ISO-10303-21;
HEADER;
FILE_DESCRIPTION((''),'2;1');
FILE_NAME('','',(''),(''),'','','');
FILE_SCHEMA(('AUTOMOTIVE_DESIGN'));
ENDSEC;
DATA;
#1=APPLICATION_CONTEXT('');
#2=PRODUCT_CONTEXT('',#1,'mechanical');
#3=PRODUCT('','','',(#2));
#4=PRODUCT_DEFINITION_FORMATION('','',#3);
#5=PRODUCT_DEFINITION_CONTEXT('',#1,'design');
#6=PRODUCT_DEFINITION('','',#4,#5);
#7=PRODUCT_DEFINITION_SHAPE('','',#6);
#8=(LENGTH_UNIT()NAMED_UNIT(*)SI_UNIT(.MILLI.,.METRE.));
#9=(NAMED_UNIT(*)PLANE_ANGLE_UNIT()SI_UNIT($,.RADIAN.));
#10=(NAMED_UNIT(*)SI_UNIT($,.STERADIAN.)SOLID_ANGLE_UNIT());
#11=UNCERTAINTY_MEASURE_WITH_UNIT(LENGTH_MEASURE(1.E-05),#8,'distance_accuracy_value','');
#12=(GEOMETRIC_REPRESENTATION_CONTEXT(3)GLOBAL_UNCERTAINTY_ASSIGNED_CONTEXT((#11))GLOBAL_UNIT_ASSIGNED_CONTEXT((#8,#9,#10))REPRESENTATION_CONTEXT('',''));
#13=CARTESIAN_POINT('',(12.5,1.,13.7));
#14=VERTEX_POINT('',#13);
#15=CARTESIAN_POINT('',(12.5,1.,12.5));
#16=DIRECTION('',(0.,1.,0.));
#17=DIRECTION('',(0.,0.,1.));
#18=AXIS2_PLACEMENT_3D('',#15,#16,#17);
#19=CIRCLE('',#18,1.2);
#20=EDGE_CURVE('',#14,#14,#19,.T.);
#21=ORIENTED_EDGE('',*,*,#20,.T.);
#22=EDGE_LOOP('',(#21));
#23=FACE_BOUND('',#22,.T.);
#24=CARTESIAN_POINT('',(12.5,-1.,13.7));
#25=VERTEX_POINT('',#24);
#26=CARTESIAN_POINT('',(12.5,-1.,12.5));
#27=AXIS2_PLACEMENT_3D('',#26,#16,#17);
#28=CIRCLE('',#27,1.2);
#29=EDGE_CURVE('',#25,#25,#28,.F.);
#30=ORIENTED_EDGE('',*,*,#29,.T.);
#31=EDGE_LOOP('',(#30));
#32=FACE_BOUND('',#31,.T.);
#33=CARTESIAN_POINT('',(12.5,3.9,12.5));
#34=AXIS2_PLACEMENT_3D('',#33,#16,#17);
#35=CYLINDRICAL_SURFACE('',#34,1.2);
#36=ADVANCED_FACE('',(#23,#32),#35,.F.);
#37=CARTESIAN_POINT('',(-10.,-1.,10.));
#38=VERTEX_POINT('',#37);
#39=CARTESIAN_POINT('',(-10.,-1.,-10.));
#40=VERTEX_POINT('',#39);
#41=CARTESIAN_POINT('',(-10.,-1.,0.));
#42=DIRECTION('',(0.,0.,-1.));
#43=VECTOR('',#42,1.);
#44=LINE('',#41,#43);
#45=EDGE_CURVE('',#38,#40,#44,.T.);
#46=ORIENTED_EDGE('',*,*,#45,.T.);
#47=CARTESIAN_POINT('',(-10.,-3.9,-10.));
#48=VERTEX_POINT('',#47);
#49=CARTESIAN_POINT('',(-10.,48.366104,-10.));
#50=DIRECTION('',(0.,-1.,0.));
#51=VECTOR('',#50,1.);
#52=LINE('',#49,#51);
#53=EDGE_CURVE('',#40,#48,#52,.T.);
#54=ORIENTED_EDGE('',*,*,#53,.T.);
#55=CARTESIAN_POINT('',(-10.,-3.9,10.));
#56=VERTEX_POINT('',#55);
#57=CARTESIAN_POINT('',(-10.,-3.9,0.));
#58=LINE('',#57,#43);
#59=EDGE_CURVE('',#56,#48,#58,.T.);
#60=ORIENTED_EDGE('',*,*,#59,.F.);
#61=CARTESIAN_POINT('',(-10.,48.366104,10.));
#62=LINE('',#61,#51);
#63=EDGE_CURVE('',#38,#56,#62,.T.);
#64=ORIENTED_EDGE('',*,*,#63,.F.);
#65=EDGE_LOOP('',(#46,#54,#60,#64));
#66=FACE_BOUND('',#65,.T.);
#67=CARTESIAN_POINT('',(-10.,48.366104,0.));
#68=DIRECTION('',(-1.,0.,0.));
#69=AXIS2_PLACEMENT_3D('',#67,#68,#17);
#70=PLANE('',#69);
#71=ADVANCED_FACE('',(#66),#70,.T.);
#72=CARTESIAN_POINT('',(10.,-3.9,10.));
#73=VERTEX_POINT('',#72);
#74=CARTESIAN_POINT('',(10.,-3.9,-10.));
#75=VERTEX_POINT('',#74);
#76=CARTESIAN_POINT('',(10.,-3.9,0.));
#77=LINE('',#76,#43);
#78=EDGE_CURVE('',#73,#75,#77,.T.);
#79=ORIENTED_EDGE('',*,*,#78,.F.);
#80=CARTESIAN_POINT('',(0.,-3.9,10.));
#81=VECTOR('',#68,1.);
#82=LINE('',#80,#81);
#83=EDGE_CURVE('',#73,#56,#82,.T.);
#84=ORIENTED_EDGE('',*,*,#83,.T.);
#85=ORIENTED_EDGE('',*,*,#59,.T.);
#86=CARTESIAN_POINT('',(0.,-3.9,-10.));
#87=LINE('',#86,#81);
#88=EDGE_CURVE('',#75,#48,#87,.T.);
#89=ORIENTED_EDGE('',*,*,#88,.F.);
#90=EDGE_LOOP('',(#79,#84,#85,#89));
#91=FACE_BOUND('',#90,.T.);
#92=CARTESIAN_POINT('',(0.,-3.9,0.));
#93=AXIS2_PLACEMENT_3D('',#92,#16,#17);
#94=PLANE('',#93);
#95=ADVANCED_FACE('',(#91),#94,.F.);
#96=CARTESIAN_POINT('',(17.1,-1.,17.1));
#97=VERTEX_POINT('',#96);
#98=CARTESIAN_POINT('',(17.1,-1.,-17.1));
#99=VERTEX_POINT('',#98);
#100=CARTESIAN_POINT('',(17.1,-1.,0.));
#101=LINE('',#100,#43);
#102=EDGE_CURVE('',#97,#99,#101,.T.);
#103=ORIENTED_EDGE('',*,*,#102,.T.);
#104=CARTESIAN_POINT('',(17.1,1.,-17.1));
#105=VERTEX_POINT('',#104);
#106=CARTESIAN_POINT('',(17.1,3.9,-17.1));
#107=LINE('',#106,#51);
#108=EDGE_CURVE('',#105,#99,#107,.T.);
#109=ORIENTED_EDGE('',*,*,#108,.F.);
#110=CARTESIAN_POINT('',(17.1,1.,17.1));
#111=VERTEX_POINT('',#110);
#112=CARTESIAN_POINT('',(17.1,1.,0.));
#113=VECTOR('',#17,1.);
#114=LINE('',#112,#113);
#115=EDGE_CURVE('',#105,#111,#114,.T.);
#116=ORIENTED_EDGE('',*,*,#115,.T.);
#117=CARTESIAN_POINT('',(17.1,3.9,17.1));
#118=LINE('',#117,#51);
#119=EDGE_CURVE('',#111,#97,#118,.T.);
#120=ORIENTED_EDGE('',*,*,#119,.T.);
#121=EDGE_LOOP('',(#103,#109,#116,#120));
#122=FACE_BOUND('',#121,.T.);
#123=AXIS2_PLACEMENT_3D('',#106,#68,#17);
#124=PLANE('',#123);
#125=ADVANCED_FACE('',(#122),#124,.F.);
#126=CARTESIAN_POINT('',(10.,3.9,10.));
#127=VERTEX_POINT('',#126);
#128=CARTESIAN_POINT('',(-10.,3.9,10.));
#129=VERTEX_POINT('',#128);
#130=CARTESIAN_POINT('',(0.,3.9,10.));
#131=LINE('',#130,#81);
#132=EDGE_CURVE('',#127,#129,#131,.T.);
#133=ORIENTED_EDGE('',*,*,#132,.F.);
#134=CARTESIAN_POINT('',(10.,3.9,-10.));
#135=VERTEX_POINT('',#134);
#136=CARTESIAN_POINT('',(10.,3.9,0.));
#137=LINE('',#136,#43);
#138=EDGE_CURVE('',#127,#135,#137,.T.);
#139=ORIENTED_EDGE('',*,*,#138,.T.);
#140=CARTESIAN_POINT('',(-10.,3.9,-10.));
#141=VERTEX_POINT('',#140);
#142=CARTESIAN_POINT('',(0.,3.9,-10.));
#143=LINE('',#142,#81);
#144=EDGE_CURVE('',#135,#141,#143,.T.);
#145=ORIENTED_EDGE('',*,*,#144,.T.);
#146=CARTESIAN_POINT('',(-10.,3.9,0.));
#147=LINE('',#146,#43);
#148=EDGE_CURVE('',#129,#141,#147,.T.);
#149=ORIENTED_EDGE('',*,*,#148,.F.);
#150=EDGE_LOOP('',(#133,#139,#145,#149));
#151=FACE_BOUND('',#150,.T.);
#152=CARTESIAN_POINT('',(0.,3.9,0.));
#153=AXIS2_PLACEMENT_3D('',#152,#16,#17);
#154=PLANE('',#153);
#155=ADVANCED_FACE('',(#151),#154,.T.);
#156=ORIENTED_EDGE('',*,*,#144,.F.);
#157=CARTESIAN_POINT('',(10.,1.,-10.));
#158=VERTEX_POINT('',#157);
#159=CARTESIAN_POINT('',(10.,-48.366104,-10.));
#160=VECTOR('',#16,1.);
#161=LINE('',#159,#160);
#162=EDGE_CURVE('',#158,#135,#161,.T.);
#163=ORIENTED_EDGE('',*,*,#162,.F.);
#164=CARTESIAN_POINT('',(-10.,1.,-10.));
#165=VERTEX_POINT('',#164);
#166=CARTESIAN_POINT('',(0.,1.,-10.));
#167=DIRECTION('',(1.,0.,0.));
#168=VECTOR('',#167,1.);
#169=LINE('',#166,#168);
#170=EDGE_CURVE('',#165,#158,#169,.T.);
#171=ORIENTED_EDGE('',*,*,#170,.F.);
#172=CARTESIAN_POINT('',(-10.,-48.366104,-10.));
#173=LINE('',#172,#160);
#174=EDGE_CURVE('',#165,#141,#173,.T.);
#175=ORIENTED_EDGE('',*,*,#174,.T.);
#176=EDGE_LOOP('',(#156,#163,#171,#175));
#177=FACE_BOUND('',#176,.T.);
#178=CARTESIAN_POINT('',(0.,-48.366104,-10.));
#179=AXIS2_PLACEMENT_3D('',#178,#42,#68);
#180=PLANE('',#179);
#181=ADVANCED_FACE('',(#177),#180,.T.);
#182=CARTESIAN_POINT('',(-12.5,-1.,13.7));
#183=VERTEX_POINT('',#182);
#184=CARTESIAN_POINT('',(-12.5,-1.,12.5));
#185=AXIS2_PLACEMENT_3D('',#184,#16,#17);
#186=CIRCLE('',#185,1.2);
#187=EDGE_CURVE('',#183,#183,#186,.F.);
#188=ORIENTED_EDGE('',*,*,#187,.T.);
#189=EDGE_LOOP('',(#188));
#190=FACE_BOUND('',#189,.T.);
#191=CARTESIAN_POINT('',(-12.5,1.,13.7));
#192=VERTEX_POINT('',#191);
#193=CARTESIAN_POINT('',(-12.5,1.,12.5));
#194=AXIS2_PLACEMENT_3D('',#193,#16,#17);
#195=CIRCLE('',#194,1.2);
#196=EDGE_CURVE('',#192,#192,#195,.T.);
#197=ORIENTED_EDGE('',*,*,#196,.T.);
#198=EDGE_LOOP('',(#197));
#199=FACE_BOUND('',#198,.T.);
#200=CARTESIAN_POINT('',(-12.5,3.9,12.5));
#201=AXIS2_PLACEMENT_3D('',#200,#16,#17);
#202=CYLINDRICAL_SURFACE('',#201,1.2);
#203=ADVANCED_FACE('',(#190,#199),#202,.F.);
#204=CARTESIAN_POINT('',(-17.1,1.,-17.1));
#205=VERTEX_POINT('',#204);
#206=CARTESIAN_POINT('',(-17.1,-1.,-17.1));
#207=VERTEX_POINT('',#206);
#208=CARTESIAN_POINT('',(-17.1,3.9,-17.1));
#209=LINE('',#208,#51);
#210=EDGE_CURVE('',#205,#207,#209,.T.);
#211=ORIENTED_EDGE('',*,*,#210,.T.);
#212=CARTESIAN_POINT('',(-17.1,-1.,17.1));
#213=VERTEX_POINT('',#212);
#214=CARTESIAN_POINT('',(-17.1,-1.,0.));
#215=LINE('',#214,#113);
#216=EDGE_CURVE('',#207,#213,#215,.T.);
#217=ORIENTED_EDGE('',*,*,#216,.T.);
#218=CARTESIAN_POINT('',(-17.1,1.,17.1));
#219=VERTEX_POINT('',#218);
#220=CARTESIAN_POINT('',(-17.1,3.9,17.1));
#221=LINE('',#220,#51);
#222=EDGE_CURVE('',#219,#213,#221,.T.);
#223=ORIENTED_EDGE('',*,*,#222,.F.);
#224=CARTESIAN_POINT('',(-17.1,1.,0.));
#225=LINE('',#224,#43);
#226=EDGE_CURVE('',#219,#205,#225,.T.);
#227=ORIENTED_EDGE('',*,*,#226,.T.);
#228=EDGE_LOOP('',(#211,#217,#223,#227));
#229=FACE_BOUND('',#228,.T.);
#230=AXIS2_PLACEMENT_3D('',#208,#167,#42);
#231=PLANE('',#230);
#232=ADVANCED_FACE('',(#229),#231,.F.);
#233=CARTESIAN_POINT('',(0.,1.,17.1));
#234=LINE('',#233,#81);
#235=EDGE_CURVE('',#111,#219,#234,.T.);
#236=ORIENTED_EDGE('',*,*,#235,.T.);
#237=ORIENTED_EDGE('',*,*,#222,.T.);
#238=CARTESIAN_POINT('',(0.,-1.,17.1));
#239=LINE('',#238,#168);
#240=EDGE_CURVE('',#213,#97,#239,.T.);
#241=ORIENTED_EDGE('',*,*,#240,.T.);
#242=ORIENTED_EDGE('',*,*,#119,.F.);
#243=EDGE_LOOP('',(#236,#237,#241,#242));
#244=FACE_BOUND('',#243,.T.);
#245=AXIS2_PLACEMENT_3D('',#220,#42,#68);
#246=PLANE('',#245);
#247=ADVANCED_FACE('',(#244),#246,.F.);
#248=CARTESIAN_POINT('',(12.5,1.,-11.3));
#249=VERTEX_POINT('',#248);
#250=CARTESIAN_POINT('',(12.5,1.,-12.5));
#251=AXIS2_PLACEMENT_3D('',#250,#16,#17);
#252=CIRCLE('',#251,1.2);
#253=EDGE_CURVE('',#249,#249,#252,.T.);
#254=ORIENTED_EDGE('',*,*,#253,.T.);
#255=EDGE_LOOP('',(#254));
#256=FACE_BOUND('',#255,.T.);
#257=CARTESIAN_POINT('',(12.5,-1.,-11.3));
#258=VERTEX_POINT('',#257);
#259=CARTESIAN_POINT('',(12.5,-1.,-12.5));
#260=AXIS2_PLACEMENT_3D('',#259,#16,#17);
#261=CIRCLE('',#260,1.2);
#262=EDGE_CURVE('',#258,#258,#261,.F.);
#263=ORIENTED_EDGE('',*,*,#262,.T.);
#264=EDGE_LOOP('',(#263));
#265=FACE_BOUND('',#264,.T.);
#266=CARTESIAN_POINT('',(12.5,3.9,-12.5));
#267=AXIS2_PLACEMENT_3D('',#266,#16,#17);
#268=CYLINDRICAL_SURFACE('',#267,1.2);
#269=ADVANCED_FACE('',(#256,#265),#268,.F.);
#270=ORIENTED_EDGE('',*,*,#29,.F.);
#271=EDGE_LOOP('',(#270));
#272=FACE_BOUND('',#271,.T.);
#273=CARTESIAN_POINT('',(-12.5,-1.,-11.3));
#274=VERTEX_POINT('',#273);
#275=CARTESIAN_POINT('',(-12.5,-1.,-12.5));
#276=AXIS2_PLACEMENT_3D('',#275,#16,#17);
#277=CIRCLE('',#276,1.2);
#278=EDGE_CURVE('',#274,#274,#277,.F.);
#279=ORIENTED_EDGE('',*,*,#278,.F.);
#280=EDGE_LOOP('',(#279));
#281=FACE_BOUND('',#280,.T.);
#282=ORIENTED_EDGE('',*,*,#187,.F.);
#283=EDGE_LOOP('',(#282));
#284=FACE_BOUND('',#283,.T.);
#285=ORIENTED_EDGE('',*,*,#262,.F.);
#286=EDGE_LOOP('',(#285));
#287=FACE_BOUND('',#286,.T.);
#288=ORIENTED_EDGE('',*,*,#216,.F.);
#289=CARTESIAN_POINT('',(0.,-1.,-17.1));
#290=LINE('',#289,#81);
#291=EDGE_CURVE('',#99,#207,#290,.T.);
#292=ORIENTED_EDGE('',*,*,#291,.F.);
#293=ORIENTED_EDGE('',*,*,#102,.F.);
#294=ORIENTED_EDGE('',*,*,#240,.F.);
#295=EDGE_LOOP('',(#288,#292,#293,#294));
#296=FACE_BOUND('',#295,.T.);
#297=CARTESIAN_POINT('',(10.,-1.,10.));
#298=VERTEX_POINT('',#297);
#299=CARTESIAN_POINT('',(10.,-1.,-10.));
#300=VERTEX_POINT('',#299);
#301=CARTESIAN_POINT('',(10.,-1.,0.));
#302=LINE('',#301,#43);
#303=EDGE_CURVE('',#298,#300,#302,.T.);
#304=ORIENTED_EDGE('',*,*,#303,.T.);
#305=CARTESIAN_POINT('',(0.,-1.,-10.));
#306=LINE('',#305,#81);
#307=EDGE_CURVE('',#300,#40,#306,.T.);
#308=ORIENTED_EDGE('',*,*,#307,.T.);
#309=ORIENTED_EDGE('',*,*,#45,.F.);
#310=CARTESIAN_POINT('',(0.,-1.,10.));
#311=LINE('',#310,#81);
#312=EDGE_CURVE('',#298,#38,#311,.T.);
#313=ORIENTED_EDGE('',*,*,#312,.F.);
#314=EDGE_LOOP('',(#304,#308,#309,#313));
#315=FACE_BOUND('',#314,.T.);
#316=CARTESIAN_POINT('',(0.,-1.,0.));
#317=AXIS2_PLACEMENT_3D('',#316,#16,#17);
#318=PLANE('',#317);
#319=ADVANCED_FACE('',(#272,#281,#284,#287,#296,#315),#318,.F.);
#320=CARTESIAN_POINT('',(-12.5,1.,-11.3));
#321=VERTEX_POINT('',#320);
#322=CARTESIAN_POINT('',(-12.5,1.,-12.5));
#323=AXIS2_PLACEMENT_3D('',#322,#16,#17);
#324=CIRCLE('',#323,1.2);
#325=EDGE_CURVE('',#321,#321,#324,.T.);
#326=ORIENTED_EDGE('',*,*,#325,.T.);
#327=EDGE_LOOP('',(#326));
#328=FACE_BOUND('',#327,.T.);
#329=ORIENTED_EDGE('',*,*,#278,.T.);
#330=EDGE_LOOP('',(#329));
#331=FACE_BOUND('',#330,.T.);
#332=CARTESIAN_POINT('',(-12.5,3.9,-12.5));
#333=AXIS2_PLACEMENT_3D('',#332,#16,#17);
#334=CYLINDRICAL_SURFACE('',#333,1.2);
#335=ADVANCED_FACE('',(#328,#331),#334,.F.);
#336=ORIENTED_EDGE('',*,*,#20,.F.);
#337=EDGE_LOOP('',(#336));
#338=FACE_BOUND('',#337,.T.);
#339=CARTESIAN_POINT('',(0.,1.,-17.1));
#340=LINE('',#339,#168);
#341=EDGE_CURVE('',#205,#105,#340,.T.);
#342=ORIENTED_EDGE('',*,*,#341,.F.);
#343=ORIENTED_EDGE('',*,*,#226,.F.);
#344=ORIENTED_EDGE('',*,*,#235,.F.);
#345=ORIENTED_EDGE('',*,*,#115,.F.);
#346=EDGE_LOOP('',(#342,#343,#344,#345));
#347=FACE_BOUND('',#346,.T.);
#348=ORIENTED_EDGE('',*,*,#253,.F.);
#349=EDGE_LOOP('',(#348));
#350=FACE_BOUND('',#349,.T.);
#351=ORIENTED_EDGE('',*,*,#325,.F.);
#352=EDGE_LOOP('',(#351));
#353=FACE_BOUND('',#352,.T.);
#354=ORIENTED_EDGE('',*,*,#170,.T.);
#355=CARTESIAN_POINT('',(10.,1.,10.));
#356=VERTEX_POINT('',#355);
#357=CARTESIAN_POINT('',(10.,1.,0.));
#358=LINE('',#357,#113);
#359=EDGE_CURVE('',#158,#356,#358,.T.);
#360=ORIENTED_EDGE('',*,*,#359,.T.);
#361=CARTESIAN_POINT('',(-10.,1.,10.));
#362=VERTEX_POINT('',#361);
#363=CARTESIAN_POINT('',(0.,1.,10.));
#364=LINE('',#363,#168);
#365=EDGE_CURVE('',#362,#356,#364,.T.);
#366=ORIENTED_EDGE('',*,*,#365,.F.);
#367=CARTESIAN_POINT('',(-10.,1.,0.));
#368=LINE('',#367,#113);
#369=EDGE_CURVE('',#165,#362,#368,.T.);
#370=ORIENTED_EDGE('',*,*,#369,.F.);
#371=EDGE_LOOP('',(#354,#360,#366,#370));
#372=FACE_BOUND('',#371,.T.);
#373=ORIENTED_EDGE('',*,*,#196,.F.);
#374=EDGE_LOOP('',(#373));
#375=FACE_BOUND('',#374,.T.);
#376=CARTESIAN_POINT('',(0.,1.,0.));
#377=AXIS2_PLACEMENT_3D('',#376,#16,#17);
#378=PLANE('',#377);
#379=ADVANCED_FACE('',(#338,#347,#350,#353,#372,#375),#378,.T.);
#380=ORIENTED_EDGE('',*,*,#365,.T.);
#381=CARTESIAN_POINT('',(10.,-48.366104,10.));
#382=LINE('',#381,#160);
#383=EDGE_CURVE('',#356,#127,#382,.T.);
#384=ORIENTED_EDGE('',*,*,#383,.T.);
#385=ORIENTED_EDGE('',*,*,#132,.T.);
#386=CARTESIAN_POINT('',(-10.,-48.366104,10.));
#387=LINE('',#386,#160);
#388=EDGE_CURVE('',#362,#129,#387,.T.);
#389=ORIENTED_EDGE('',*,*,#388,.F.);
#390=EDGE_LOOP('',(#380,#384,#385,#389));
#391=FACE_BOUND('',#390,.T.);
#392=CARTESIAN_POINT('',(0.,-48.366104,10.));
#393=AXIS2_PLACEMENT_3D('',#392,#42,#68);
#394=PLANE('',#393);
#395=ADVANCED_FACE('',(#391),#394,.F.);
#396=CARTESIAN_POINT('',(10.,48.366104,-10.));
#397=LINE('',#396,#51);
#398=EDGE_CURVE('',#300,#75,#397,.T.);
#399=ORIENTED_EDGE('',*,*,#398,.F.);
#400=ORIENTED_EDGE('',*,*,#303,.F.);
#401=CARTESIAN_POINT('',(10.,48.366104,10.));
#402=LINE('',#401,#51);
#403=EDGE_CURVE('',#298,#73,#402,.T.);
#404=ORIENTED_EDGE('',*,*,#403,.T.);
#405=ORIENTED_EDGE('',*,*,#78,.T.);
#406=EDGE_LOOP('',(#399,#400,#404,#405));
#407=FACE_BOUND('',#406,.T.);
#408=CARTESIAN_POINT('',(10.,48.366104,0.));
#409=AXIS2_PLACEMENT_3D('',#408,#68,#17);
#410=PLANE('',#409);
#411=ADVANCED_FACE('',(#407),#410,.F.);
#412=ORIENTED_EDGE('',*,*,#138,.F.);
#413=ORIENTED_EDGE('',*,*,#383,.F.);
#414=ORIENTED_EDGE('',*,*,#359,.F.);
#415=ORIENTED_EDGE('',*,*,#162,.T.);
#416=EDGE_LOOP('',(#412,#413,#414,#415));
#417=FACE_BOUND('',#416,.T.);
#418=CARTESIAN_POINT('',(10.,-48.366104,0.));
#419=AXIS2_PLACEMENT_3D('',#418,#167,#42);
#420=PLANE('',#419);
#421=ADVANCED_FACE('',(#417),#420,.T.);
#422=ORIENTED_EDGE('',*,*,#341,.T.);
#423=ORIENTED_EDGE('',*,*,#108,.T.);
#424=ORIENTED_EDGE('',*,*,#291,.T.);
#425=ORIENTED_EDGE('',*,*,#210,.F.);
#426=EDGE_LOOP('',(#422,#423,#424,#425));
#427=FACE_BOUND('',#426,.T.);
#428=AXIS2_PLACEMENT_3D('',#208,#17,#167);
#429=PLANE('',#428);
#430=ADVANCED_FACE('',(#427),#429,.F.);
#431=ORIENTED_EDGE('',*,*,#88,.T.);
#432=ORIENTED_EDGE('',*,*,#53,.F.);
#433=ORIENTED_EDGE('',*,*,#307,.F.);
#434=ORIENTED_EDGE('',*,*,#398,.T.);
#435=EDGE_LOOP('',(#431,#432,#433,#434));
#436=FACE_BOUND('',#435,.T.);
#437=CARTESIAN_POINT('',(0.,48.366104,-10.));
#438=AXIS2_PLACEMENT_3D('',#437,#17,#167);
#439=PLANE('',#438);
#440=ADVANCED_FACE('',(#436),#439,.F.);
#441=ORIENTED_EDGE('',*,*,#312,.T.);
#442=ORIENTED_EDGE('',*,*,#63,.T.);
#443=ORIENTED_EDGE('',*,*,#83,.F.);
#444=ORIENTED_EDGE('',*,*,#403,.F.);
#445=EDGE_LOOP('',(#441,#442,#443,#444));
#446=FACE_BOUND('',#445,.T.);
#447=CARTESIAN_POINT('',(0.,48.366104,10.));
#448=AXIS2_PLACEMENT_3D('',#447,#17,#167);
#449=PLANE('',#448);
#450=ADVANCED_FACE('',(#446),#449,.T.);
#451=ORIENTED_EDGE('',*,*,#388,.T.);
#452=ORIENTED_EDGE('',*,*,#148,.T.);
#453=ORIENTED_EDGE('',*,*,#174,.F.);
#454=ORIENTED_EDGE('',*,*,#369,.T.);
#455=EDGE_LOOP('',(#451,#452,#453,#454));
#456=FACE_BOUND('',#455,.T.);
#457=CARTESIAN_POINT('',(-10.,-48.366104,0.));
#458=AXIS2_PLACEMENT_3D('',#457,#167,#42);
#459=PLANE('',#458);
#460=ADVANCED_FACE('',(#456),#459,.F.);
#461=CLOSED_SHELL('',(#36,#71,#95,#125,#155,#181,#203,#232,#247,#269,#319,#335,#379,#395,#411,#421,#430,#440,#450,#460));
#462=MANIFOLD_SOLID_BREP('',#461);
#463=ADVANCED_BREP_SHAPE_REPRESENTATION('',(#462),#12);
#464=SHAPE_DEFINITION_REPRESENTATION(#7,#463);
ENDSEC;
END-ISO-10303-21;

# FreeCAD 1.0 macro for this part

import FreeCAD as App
import Part
import Sketcher
from FreeCAD import Vector
Q = App.Units.Quantity


def add_polygon(sketch, points):
    """Adds a closed chain of lines whose ends are joined by coincident constraints."""
    first, n = sketch.GeometryCount, len(points)
    for a, b in zip(points, points[1:] + points[:1]):
        sketch.addGeometry(Part.LineSegment(App.Vector(*a, 0), App.Vector(*b, 0)), False)
    for i in range(n):
        sketch.addConstraint(Sketcher.Constraint("Coincident", first + i, 2, first + (i + 1) % n, 1))

doc = App.newDocument("Part")
body = doc.addObject("PartDesign::Body", "Body")

sketch1 = body.newObject("Sketcher::SketchObject", "Sketch")
sketch1.AttachmentSupport = (doc.getObject("XZ_Plane"), [""])
sketch1.MapMode = "FlatFace"
add_polygon(sketch1, [(-17, -17), (-17, 17), (17, 17), (17, -17)])
sketch1.addConstraint([
    Sketcher.Constraint("Vertical", 0),
    Sketcher.Constraint("Horizontal", 1),
    Sketcher.Constraint("Vertical", 2),
    Sketcher.Constraint("Horizontal", 3),
    Sketcher.Constraint("Symmetric", 0, 2, 2, 2, -1, 1),
    Sketcher.Constraint("Equal", 3, 0),
    Sketcher.Constraint("DistanceX", 1, 1, 1, 2, Q("34.2 mm")),
])
pad1 = body.newObject("PartDesign::Pad", "Pad")
pad1.Profile = sketch1
pad1.Length = 7.8
pad1.Midplane = True

sketch2 = body.newObject("Sketcher::SketchObject", "Sketch001")
sketch2.AttachmentSupport = (doc.getObject("XZ_Plane"), [""])
sketch2.MapMode = "FlatFace"
sketch2.AttachmentOffset = App.Placement(Vector(0, 0, -3.9), App.Rotation())
sketch2.addGeometry([
    Part.Circle(Vector(-12.5, -12.5, 0), Vector(0, 0, 1), 1.2),
    Part.Circle(Vector(12.5, 12.5, 0), Vector(0, 0, 1), 1.2),
    Part.Circle(Vector(12.5, -12.5, 0), Vector(0, 0, 1), 1.2),
    Part.Circle(Vector(-12.5, 12.5, 0), Vector(0, 0, 1), 1.2),
], False)
sketch2.addConstraint([
    Sketcher.Constraint("Equal", 0, 1),
    Sketcher.Constraint("Equal", 1, 2),
    Sketcher.Constraint("Equal", 2, 3),
    Sketcher.Constraint("Symmetric", 0, 3, 1, 3, -1, 1),
    Sketcher.Constraint("Symmetric", 2, 3, 3, 3, -1, 1),
    Sketcher.Constraint("Symmetric", 0, 3, 2, 3, -2),
    Sketcher.Constraint("Diameter", 0, Q("2.4 mm")),
    Sketcher.Constraint("DistanceX", 0, 3, 1, 3, Q("25 mm")),
    Sketcher.Constraint("DistanceY", 0, 3, 1, 3, Q("25 mm")),
])
doc.recompute()
hole = body.newObject("PartDesign::Hole", "Hole")
hole.Profile = sketch2
hole.ThreadType = "None"
hole.Diameter = 2.4
hole.DepthType = "ThroughAll"
hole.Reversed = True

sketch3 = body.newObject("Sketcher::SketchObject", "Sketch002")
sketch3.AttachmentSupport = (doc.getObject("XZ_Plane"), [""])
sketch3.MapMode = "FlatFace"
sketch3.AttachmentOffset = App.Placement(Vector(0, 0, -1), App.Rotation())
add_polygon(sketch3, [(-17.1, -17.1), (-17.1, 17.1), (17.1, 17.1), (17.1, -17.1)])
sketch3.addGeometry(Part.Circle(Vector(-12.5, 12.5, 0), Vector(0, 0, 1), 1.2), False)
sketch3.addGeometry(Part.Circle(Vector(12.5, 12.5, 0), Vector(0, 0, 1), 1.2), False)
sketch3.addGeometry(Part.Circle(Vector(-12.5, -12.5, 0), Vector(0, 0, 1), 1.2), False)
add_polygon(sketch3, [(10, 10), (-10, 10), (-10, -10), (10, -10)])
sketch3.addGeometry(Part.Circle(Vector(12.5, -12.5, 0), Vector(0, 0, 1), 1.2), False)
sketch3.addConstraint([
    Sketcher.Constraint("Vertical", 0),
    Sketcher.Constraint("Horizontal", 1),
    Sketcher.Constraint("Vertical", 2),
    Sketcher.Constraint("Horizontal", 3),
    Sketcher.Constraint("Horizontal", 7),
    Sketcher.Constraint("Vertical", 8),
    Sketcher.Constraint("Horizontal", 9),
    Sketcher.Constraint("Vertical", 10),
    Sketcher.Constraint("Equal", 4, 5),
    Sketcher.Constraint("Equal", 5, 6),
    Sketcher.Constraint("Equal", 6, 11),
    Sketcher.Constraint("Symmetric", 5, 3, 6, 3, -1, 1),
    Sketcher.Constraint("Symmetric", 4, 3, 11, 3, -1, 1),
    Sketcher.Constraint("Symmetric", 0, 2, 2, 2, -1, 1),
    Sketcher.Constraint("Symmetric", 7, 2, 9, 2, -1, 1),
    Sketcher.Constraint("Symmetric", 4, 3, 5, 3, -2),
    Sketcher.Constraint("Equal", 3, 0),
    Sketcher.Constraint("Equal", 9, 8),
    Sketcher.Constraint("Diameter", 4, Q("2.4 mm")),
    Sketcher.Constraint("DistanceX", 7, 2, 7, 1, Q("20 mm")),
    Sketcher.Constraint("DistanceX", 1, 1, 1, 2, Q("34.2 mm")),
    Sketcher.Constraint("DistanceX", 4, 3, 5, 3, Q("25 mm")),
    Sketcher.Constraint("DistanceY", 6, 3, 4, 3, Q("25 mm")),
])
pocket1 = body.newObject("PartDesign::Pocket", "Pocket")
pocket1.Profile = sketch3
pocket1.Length = 2.9
doc.recompute()

mirrored = body.newObject("PartDesign::Mirrored", "Mirrored")
mirrored.Originals = [pocket1]
mirrored.MirrorPlane = (doc.getObject("XZ_Plane"), [""])
body.Tip = mirrored

doc.recompute()
